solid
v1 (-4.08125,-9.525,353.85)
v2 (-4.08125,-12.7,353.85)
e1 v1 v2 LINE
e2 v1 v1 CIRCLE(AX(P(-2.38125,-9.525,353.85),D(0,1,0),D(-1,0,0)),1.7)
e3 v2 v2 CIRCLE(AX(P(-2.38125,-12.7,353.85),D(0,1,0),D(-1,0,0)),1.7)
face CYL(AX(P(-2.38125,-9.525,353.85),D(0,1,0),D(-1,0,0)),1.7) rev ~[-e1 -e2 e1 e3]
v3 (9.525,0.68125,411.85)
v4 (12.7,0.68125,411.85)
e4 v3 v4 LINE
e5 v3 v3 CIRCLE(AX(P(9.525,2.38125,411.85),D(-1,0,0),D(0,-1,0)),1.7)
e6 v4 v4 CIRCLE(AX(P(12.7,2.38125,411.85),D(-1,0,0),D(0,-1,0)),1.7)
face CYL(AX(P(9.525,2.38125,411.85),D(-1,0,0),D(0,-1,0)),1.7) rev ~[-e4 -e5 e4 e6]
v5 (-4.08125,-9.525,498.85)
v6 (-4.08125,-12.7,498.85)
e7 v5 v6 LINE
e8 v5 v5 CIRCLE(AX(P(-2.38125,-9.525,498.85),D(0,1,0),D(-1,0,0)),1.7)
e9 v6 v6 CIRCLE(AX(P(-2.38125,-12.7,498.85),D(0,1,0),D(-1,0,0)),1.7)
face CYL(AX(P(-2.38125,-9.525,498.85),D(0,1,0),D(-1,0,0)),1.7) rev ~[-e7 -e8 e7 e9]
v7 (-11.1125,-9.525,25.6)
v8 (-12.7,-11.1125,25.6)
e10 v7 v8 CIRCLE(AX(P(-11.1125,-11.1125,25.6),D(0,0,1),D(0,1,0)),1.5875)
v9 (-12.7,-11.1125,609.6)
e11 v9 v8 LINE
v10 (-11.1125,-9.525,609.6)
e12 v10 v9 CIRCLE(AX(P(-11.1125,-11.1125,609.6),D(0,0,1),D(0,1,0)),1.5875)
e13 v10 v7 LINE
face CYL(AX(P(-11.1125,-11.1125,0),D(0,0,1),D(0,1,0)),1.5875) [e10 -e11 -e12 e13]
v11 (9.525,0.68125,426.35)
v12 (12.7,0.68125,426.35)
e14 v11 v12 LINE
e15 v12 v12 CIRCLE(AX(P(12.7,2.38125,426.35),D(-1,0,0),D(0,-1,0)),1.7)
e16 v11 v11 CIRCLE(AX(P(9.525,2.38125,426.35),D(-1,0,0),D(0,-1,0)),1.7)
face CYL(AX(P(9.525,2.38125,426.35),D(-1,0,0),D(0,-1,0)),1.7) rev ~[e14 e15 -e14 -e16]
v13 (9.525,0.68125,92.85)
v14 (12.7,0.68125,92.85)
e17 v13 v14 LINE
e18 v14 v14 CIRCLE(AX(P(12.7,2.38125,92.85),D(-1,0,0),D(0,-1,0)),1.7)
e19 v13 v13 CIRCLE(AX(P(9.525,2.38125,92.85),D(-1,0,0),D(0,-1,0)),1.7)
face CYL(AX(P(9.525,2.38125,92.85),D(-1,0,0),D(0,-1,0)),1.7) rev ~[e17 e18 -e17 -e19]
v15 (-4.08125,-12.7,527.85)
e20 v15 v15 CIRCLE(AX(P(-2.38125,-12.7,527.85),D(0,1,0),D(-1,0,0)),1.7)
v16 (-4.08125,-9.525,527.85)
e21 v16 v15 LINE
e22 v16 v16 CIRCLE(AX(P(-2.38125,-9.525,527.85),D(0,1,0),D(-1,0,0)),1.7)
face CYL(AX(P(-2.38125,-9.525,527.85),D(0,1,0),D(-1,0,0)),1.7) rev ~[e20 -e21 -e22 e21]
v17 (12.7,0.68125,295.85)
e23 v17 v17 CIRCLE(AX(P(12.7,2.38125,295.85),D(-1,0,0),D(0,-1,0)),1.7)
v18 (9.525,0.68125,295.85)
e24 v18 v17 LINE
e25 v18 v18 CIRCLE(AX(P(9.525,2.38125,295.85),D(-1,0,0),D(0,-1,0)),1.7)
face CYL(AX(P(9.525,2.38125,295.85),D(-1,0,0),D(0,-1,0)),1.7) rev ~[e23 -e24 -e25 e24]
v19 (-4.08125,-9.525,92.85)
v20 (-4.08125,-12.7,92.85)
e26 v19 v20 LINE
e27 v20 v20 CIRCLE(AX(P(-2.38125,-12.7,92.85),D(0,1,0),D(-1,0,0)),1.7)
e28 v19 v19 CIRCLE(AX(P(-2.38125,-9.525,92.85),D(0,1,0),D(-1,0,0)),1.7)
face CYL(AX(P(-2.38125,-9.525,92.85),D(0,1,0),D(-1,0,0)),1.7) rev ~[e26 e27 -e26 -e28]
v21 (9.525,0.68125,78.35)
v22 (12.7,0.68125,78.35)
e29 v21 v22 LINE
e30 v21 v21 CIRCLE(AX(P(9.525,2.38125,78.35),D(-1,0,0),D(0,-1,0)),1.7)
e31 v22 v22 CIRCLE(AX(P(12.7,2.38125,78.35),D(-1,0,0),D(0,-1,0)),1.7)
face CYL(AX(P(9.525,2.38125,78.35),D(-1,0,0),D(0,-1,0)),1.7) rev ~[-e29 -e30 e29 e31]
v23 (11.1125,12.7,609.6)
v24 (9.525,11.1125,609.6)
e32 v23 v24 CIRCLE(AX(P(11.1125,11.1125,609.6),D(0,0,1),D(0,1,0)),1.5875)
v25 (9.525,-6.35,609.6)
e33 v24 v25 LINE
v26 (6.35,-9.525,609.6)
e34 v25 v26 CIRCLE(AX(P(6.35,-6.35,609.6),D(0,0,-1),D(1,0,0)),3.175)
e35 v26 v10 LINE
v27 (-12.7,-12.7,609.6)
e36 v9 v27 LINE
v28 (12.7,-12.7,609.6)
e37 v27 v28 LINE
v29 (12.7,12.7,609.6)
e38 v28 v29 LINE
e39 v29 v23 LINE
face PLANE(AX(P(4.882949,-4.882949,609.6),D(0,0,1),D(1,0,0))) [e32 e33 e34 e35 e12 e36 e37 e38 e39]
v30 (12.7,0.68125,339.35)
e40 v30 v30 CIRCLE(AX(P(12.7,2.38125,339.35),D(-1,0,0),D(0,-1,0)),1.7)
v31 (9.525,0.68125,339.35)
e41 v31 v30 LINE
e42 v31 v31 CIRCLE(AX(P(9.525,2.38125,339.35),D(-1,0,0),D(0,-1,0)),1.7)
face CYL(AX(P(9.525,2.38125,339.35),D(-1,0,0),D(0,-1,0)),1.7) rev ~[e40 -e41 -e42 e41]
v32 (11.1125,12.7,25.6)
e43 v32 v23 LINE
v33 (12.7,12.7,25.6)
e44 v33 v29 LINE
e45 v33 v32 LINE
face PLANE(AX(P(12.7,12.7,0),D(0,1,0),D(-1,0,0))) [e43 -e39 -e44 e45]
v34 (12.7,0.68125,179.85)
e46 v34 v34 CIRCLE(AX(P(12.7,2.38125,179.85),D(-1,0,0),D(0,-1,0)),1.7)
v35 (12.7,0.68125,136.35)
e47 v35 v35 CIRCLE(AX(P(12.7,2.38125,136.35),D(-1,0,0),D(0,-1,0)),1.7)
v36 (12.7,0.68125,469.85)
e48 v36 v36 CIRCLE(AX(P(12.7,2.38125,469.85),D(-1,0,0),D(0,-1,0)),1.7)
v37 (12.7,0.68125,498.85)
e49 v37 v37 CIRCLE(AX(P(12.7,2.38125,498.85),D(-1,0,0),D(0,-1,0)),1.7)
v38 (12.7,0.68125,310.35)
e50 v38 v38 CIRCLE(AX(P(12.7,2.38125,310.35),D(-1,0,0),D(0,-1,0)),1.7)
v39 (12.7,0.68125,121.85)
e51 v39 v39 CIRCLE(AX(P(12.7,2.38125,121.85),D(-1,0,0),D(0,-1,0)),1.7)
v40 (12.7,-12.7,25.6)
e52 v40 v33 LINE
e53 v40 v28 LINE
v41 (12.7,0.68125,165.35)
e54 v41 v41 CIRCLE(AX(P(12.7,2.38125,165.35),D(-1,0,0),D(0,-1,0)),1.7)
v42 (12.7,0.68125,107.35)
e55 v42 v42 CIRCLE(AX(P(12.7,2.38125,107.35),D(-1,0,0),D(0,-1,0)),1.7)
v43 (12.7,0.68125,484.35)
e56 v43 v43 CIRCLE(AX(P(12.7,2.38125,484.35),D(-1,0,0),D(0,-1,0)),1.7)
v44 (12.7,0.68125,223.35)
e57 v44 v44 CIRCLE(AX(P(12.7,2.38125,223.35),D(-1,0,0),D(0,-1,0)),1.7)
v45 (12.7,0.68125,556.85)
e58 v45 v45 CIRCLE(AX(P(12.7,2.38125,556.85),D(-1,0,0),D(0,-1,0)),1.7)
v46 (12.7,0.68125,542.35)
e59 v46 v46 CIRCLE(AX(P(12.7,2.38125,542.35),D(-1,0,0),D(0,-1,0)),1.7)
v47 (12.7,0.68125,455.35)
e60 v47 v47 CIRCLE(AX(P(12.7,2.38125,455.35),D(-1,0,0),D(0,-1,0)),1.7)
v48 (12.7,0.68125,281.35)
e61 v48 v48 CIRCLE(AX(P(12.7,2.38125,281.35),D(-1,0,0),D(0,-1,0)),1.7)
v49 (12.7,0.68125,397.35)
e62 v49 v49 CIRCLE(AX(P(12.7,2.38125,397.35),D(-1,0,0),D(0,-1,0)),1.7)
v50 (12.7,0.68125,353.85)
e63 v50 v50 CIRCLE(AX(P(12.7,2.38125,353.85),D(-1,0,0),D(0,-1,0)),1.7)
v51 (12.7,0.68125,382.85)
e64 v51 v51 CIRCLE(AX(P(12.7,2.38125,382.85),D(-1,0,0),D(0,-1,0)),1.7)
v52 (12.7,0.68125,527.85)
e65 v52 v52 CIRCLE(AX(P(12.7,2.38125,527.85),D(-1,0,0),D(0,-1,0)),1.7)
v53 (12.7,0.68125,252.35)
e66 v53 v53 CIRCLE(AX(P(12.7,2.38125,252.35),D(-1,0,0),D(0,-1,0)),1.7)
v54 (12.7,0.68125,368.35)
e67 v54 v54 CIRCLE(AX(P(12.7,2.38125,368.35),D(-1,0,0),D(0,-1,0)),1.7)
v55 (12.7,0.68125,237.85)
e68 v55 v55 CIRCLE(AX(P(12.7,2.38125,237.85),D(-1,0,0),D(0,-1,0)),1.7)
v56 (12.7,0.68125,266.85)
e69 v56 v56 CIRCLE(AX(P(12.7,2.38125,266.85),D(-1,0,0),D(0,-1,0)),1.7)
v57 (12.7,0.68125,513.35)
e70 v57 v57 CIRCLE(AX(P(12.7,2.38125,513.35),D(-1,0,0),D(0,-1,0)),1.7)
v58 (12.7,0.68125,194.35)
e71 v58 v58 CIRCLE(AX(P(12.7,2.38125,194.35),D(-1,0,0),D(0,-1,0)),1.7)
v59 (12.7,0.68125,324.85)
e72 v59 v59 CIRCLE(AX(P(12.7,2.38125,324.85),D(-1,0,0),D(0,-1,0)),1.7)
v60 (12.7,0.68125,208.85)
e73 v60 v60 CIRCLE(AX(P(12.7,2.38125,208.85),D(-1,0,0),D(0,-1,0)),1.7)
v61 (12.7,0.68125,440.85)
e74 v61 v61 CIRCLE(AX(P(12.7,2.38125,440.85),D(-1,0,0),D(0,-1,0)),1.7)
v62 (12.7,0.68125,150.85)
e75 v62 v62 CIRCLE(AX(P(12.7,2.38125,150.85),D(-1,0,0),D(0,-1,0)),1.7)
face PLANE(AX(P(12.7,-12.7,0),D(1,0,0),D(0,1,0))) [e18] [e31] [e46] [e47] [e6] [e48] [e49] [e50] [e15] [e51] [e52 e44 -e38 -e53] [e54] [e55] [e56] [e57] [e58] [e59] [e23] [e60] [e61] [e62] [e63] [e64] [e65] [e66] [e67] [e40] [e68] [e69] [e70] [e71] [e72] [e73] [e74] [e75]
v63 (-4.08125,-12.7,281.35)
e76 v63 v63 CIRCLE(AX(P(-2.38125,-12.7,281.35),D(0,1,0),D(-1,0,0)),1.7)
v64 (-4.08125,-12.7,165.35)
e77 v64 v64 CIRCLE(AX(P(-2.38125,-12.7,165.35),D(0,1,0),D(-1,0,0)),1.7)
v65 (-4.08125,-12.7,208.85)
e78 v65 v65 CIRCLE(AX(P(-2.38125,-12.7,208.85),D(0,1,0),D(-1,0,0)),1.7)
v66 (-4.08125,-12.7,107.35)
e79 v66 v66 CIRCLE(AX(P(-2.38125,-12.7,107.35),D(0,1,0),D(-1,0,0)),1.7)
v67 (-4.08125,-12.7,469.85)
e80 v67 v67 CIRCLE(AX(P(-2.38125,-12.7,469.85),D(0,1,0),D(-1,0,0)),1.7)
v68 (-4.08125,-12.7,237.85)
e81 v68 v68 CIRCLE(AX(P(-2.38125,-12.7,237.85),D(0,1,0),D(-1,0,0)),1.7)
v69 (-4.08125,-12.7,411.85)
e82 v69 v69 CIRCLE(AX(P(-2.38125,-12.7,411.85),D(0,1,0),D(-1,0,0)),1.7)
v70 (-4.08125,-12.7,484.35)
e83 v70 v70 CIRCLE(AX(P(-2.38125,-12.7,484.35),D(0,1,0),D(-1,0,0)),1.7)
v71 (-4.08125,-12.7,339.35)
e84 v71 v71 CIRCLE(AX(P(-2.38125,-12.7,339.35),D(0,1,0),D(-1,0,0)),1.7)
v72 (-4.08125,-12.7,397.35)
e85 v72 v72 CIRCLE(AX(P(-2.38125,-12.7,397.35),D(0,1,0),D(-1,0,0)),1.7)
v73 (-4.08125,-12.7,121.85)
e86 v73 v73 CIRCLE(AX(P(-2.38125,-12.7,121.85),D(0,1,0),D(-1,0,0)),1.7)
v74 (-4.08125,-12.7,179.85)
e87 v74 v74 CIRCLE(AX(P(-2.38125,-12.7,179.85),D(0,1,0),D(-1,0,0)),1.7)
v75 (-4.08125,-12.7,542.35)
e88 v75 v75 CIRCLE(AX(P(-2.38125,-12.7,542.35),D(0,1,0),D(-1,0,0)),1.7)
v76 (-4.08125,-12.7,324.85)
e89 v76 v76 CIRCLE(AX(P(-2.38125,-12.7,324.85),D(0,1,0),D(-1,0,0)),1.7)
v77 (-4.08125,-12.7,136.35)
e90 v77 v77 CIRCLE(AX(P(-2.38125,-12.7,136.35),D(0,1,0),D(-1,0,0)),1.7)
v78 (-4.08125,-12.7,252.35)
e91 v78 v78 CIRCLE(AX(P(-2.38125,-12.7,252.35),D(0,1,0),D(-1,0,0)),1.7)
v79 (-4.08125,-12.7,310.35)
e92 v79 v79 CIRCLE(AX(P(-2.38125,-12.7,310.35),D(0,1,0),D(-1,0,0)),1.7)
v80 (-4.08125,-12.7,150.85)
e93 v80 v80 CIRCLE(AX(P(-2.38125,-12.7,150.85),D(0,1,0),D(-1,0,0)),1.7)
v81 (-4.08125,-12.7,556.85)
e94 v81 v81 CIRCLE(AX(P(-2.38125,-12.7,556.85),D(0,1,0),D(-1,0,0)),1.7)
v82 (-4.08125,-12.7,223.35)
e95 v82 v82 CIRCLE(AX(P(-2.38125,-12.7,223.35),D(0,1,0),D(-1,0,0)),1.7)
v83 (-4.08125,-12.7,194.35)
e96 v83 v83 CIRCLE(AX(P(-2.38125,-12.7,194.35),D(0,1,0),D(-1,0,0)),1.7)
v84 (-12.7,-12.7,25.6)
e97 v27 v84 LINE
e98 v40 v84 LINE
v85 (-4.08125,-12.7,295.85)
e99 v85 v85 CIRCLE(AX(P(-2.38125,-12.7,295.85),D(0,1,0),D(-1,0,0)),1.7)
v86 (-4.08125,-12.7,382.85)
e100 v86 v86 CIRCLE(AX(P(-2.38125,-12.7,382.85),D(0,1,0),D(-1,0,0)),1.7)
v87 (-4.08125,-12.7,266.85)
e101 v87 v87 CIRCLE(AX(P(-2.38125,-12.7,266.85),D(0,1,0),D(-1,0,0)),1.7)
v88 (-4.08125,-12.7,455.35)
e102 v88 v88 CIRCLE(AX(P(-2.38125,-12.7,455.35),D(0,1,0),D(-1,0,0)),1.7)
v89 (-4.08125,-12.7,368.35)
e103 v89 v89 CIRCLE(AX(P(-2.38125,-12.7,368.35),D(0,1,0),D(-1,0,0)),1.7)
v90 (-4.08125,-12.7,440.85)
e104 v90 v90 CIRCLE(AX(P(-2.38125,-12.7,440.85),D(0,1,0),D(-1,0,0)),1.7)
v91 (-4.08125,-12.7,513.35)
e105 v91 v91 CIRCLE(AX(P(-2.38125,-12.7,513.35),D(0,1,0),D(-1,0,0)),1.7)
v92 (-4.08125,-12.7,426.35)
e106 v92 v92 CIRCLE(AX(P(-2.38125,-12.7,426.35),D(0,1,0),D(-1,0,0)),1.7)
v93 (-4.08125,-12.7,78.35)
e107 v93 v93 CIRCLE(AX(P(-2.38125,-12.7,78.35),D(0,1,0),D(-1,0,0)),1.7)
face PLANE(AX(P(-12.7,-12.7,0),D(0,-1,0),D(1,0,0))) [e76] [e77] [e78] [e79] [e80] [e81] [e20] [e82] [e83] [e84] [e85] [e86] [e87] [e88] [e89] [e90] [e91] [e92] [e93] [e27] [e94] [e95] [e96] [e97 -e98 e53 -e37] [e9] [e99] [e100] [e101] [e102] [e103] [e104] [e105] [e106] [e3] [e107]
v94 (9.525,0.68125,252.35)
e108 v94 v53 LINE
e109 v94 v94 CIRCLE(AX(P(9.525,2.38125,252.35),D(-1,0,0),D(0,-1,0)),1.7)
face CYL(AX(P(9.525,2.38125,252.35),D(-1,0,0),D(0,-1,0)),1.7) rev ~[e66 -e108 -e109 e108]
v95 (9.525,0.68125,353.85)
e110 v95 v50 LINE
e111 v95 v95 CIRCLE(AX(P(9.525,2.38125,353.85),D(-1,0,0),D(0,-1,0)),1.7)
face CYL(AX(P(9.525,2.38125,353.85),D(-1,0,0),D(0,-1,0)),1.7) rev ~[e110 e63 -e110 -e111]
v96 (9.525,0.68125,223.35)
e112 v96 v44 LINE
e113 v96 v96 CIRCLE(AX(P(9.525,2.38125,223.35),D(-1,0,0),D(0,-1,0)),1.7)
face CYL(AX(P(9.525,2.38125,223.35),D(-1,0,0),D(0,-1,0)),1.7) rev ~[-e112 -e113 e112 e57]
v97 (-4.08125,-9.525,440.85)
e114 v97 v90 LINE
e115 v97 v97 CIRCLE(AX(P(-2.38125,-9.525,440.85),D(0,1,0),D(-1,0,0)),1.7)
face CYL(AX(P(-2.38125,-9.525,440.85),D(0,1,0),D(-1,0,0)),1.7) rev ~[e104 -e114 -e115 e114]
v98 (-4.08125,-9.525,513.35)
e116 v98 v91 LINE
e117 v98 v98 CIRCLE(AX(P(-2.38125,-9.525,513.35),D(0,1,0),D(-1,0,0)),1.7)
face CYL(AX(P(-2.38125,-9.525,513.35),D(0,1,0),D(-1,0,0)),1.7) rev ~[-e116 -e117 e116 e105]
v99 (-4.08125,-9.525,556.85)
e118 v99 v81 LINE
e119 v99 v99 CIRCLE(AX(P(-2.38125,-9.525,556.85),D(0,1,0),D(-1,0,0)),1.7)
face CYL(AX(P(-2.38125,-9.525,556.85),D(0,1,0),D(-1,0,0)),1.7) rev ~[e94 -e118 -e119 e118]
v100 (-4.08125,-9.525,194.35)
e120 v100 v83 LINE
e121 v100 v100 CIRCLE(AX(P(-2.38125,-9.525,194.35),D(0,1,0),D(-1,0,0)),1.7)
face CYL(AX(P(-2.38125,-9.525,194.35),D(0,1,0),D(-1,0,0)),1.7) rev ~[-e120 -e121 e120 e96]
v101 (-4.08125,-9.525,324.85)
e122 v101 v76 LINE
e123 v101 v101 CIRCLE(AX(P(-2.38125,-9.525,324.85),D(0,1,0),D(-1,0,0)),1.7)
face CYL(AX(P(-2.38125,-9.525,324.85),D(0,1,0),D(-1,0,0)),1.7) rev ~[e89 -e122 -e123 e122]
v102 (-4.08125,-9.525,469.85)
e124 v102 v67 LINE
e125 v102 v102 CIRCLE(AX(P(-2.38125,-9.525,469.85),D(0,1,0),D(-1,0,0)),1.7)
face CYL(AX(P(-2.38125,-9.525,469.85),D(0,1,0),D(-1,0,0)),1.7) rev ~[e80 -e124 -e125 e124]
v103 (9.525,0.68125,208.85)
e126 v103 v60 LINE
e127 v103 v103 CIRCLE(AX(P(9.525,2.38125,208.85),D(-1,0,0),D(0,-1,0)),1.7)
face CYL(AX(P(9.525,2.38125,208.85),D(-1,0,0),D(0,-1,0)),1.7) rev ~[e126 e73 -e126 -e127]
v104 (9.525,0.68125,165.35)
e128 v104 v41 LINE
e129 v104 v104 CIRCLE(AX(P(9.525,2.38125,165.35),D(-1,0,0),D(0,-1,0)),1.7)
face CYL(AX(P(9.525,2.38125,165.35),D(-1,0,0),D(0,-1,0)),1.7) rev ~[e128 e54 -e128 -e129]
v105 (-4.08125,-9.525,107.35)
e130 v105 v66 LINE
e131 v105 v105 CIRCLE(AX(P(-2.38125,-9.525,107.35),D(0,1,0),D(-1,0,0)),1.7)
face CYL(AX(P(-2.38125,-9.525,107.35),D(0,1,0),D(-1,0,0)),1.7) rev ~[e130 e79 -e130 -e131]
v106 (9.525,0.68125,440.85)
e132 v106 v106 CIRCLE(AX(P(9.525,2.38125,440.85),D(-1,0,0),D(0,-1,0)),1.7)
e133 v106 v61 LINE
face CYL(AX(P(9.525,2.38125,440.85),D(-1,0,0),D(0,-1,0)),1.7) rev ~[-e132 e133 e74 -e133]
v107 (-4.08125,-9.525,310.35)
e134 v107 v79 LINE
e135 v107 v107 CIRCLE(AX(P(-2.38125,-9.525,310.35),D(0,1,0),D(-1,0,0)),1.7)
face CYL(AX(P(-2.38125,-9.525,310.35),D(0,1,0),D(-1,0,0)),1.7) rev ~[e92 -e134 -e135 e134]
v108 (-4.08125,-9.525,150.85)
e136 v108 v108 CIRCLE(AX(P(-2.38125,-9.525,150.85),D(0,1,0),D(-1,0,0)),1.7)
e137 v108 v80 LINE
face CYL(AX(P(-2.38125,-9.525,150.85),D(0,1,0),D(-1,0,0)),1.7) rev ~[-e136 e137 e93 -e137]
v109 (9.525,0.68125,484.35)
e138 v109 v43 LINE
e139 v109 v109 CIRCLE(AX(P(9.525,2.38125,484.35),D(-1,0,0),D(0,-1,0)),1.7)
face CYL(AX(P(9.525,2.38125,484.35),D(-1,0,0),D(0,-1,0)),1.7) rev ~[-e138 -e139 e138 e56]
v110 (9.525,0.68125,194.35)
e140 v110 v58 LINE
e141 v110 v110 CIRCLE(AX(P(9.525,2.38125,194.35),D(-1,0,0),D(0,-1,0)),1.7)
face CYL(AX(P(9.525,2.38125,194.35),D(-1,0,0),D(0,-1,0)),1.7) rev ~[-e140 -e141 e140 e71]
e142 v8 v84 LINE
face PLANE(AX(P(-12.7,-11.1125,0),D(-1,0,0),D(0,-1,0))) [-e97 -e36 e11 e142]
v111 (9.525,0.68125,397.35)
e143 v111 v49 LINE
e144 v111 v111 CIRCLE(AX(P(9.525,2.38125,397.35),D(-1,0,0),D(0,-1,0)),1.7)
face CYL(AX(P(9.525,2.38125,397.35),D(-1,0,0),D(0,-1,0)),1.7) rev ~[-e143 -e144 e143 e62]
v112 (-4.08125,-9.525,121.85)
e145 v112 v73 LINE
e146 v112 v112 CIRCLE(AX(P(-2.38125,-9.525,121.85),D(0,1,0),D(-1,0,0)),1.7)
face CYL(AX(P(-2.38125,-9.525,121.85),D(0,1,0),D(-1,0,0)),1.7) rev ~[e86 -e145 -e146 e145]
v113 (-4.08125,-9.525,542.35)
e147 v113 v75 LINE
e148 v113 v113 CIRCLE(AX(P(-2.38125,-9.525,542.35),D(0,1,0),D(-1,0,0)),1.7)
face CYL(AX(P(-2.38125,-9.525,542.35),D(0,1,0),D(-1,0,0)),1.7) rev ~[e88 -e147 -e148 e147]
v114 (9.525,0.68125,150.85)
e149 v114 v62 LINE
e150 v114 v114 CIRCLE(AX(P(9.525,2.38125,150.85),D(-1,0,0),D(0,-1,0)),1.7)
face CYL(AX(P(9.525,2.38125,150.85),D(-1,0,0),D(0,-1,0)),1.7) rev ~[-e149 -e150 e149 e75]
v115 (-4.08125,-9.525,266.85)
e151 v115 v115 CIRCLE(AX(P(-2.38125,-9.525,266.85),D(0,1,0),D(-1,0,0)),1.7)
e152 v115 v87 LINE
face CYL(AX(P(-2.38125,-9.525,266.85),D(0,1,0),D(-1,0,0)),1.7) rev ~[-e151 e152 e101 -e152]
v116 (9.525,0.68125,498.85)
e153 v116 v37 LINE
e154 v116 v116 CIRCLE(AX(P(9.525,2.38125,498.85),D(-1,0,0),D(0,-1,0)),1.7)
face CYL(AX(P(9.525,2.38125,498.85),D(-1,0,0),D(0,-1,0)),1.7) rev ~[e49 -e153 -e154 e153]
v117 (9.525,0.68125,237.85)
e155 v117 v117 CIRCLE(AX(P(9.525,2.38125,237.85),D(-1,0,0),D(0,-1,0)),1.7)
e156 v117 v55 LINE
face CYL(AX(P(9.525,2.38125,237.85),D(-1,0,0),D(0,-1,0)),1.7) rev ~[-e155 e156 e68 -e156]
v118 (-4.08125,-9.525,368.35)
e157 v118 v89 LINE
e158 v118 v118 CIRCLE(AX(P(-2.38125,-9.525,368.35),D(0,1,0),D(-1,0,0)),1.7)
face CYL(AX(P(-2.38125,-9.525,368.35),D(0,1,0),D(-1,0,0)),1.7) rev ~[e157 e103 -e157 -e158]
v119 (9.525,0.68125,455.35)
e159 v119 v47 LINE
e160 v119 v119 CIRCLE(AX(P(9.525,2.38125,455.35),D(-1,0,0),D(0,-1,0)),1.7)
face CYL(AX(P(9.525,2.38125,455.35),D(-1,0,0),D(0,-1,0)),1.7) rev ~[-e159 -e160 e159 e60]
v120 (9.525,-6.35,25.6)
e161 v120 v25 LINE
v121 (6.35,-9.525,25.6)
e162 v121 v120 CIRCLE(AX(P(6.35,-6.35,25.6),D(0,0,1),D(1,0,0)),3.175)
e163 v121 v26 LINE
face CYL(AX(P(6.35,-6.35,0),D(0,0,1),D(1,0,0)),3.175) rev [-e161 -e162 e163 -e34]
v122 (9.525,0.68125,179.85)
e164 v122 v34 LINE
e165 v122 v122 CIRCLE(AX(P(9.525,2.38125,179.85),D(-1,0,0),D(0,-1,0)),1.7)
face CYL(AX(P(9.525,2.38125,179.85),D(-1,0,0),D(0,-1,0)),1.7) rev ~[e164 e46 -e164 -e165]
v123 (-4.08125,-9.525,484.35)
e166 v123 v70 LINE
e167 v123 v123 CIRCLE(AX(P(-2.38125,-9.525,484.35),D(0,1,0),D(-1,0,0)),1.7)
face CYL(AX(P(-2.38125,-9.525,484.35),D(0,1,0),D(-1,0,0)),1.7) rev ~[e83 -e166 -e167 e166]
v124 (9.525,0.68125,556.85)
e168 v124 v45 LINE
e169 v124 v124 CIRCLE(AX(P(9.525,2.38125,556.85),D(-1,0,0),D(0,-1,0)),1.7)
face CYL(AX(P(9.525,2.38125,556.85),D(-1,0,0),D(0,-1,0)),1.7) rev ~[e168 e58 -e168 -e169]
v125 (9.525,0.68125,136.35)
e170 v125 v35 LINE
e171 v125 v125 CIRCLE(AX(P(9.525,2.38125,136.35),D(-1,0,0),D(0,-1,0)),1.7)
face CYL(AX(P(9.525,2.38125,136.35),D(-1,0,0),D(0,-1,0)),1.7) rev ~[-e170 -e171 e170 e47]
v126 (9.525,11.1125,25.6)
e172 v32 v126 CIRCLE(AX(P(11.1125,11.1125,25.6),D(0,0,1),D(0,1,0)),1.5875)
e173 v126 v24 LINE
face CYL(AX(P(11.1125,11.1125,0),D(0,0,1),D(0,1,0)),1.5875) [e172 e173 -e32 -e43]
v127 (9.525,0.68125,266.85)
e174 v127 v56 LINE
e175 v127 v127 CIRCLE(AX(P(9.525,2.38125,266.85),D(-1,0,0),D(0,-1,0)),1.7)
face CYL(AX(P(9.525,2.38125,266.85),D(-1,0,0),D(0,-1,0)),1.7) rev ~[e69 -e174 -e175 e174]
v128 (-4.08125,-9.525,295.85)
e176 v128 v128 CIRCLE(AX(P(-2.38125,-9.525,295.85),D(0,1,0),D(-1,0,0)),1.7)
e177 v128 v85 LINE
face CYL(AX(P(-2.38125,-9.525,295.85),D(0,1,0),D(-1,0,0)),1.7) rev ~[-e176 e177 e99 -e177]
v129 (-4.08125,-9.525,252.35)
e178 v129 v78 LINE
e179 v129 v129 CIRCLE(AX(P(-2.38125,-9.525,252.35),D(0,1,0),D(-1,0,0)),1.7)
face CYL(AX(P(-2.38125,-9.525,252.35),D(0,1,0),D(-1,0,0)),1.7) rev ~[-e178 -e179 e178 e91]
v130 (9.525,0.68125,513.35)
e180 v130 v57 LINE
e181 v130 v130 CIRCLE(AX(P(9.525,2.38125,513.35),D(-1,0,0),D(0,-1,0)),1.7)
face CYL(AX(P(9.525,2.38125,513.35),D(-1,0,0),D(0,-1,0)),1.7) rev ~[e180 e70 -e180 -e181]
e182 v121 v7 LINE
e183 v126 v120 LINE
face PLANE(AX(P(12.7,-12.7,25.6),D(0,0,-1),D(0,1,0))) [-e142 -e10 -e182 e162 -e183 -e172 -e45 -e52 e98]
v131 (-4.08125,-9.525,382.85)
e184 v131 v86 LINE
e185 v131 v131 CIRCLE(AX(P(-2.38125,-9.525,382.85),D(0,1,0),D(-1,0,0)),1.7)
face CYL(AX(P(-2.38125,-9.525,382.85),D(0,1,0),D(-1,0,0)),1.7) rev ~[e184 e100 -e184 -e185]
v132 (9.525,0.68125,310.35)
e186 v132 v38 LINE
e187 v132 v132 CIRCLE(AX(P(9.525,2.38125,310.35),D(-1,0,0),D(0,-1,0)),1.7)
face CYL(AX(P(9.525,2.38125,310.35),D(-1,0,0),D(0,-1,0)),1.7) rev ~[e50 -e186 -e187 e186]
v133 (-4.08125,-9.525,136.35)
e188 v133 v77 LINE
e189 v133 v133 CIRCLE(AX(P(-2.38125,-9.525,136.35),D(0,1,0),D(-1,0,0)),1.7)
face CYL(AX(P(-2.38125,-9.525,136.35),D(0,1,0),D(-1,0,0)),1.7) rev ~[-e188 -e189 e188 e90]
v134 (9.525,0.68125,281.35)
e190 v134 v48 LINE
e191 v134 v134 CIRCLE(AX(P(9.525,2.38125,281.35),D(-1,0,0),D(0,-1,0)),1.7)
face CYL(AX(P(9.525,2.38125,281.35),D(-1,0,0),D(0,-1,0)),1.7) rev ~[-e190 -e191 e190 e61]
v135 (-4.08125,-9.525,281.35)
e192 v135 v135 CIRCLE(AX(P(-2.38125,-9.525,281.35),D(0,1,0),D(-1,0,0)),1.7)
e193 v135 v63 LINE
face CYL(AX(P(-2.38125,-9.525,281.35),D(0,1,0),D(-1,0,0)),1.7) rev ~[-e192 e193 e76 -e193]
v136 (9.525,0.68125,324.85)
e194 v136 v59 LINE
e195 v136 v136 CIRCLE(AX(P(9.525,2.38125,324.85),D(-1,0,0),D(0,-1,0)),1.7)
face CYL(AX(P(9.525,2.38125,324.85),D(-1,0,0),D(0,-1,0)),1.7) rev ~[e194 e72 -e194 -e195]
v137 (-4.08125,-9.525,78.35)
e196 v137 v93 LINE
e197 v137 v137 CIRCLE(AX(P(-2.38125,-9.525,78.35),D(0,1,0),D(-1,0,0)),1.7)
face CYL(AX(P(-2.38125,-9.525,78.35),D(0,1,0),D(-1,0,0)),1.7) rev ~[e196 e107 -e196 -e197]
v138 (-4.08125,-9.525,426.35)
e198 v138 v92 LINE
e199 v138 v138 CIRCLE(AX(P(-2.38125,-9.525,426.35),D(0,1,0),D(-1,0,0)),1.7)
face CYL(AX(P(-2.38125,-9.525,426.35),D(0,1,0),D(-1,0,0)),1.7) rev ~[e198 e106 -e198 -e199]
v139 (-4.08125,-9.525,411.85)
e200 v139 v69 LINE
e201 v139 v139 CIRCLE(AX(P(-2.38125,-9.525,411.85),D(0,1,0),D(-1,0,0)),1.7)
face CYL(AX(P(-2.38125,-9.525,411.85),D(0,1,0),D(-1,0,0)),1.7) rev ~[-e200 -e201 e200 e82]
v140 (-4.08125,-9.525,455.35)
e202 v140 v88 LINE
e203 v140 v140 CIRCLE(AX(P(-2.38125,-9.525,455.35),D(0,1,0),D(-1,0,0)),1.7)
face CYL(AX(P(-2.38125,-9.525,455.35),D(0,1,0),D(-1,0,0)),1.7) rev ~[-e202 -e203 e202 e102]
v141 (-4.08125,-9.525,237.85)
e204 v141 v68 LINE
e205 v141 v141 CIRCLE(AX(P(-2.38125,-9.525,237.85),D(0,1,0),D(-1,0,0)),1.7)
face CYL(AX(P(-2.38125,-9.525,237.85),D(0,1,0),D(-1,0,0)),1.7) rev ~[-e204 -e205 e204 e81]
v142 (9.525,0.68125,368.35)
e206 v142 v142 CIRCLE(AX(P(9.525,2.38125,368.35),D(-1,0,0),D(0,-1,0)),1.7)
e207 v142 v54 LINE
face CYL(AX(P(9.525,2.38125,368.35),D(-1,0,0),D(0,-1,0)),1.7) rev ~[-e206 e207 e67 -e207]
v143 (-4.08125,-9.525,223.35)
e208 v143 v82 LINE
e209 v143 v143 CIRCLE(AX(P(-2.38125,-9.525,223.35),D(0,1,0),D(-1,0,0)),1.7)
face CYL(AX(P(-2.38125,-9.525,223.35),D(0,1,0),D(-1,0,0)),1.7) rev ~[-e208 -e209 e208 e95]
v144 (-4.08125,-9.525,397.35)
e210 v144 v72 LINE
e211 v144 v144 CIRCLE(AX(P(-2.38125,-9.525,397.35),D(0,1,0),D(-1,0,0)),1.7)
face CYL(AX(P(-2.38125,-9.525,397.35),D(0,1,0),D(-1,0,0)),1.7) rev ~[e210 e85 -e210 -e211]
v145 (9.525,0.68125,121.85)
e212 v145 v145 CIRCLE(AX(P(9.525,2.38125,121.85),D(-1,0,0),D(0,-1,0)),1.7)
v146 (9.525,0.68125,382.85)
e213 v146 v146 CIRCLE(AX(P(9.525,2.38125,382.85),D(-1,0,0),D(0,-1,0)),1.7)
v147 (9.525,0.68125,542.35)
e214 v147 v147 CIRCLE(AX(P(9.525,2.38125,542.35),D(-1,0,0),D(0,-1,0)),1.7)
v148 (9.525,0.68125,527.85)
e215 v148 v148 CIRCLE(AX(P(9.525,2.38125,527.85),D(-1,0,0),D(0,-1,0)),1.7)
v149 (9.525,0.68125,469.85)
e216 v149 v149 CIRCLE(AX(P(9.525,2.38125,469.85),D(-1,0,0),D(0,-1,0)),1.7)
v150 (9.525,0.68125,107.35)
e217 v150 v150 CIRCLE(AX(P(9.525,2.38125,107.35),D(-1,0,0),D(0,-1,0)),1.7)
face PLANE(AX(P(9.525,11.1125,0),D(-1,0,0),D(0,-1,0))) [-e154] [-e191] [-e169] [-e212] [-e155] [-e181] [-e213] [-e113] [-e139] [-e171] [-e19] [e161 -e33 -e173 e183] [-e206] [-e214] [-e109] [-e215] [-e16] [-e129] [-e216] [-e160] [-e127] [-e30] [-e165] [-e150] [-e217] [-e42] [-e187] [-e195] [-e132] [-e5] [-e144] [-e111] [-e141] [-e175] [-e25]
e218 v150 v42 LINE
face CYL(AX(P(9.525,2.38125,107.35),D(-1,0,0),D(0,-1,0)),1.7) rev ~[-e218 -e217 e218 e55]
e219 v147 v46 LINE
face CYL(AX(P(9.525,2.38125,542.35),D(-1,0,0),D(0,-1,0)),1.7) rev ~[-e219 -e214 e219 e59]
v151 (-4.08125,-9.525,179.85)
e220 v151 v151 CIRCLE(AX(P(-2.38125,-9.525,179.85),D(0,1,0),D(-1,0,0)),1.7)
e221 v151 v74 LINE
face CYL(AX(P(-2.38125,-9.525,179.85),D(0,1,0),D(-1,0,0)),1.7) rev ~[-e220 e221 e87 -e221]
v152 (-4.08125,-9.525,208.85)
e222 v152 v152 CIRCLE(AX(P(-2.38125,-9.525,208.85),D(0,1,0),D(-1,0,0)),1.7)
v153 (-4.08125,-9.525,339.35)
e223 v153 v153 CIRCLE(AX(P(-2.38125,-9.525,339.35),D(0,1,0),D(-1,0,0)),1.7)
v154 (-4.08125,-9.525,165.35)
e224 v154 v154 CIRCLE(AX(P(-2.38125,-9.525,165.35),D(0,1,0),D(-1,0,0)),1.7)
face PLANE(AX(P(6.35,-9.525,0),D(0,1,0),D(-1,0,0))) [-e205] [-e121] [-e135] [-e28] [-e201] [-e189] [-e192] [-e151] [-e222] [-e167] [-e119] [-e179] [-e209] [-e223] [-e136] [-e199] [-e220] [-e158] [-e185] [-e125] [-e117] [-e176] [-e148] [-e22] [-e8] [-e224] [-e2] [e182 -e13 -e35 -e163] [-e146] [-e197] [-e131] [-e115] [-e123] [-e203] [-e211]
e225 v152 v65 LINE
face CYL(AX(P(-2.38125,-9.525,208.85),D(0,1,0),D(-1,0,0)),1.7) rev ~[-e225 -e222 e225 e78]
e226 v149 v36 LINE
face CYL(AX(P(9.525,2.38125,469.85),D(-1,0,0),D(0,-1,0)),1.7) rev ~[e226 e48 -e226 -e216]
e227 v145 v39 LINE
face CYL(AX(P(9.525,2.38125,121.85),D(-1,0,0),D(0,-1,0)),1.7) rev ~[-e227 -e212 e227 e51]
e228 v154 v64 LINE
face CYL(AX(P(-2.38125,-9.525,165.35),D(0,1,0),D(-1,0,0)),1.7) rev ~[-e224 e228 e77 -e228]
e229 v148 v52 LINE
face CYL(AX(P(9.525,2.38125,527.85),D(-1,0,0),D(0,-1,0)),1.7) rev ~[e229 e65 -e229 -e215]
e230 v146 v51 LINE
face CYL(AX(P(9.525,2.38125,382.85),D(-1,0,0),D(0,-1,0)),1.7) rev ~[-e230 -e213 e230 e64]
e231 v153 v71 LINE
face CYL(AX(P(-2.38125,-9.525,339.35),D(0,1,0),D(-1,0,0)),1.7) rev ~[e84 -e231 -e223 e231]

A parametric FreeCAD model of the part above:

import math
import FreeCAD as App
import Part
import Sketcher

V = App.Vector
Q = App.Units.Quantity

doc = App.newDocument("Part")
body = doc.addObject("PartDesign::Body", "Body")

sketch1 = body.newObject("Sketcher::SketchObject", "Sketch")
sketch1.AttachmentSupport = (doc.getObject("XY_Plane"), [""])
sketch1.MapMode = "FlatFace"
sketch1.addGeometry([
    Part.LineSegment(V(-12.7, -12.7, 0), V(12.7, -12.7, 0)),
    Part.LineSegment(V(12.7, -12.7, 0), V(12.7, 12.7, 0)),
    Part.LineSegment(V(12.7, 12.7, 0), V(11.1, 12.7, 0)),
    Part.ArcOfCircle(Part.Circle(V(11.1, 11.1, 0), V(0, 0, 1), 1.6), math.radians(90), math.radians(180)),
    Part.LineSegment(V(9.5, 11.1, 0), V(9.5, -6.3, 0)),
    Part.ArcOfCircle(Part.Circle(V(6.3, -6.3, 0), V(0, 0, 1), 3.2), math.radians(-90), math.radians(0)),
    Part.LineSegment(V(6.3, -9.5, 0), V(-11.1, -9.5, 0)),
    Part.ArcOfCircle(Part.Circle(V(-11.1, -11.1, 0), V(0, 0, 1), 1.6), math.radians(90), math.radians(180)),
    Part.LineSegment(V(-12.7, -11.1, 0), V(-12.7, -12.7, 0)),
], False)
sketch1.addConstraint([
    Sketcher.Constraint("Coincident", 0, 2, 1, 1),
    Sketcher.Constraint("Coincident", 1, 2, 2, 1),
    Sketcher.Constraint("Tangent", 2, 2, 3, 1),
    Sketcher.Constraint("Tangent", 3, 2, 4, 1),
    Sketcher.Constraint("Tangent", 4, 2, 5, 2),
    Sketcher.Constraint("Tangent", 5, 1, 6, 1),
    Sketcher.Constraint("Tangent", 6, 2, 7, 1),
    Sketcher.Constraint("Tangent", 7, 2, 8, 1),
    Sketcher.Constraint("Coincident", 8, 2, 0, 1),
    Sketcher.Constraint("Horizontal", 0),
    Sketcher.Constraint("Vertical", 1),
    Sketcher.Constraint("Horizontal", 2),
    Sketcher.Constraint("Vertical", 4),
    Sketcher.Constraint("Horizontal", 6),
    Sketcher.Constraint("Vertical", 8),
    Sketcher.Constraint("Equal", 3, 7),
    Sketcher.Constraint("Symmetric", 3, 3, 7, 3, -1, 1),
    Sketcher.Constraint("Symmetric", 1, 2, 8, 2, -1, 1),
    Sketcher.Constraint("Equal", 0, 1),
    Sketcher.Constraint("DistanceX", 0, 1, 0, 2, Q("1 in")),
    Sketcher.Constraint("Radius", 3, Q("0.0625 in")),
    Sketcher.Constraint("Radius", 5, Q("0.125 in")),
])
pad1 = body.newObject("PartDesign::Pad", "Pad")
pad1.Profile = sketch1
pad1.Length = Q("48 in")
pad1.Midplane = True

sketch2 = body.newObject("Sketcher::SketchObject", "Sketch001")
sketch2.AttachmentSupport = (doc.getObject("YZ_Plane"), [""])
sketch2.MapMode = "FlatFace"
sketch2.AttachmentOffset = App.Placement(V(0, 0, 0.5 * 25.4), App.Rotation())
sketch2.addGeometry([
    Part.LineSegment(V(13, 26, 0), V(-13, 26, 0)),
    Part.LineSegment(V(-13, 26, 0), V(-13, -610, 0)),
    Part.LineSegment(V(-13, -610, 0), V(13, -610, 0)),
    Part.LineSegment(V(13, -610, 0), V(13, 26, 0)),
], False)
sketch2.addConstraint([
    Sketcher.Constraint("Coincident", 0, 2, 1, 1),
    Sketcher.Constraint("Coincident", 1, 2, 2, 1),
    Sketcher.Constraint("Coincident", 2, 2, 3, 1),
    Sketcher.Constraint("Coincident", 3, 2, 0, 1),
    Sketcher.Constraint("Horizontal", 0),
    Sketcher.Constraint("Vertical", 1),
    Sketcher.Constraint("Horizontal", 2),
    Sketcher.Constraint("Vertical", 3),
    Sketcher.Constraint("DistanceX", 0, 2, 0, 1, Q("1 in")),
    Sketcher.Constraint("DistanceY", 1, 2, -1, 1, Q("24 in")),
    Sketcher.Constraint("DistanceX", 0, 2, -1, 1, Q("0.5 in")),
    Sketcher.Constraint("DistanceY", 1, 2, 1, 1, Q("635.2 mm")),
])
pocket1 = body.newObject("PartDesign::Pocket", "Pocket")
pocket1.Profile = sketch2
pocket1.Length = Q("1.2 in")

sketch3 = body.newObject("Sketcher::SketchObject", "Sketch002")
sketch3.AttachmentSupport = (doc.getObject("YZ_Plane"), [""])
sketch3.MapMode = "FlatFace"
sketch3.AttachmentOffset = App.Placement(V(0, 0, 0.375 * 25.4), App.Rotation())
sketch3.addGeometry([
    Part.Circle(V(2.4, 78.3, 0), V(0, 0, 1), 1.7),
    Part.Circle(V(2.4, 92.8, 0), V(0, 0, 1), 1.7),
    Part.Circle(V(2.4, 107.3, 0), V(0, 0, 1), 1.7),
    Part.Circle(V(2.4, 121.8, 0), V(0, 0, 1), 1.7),
    Part.Circle(V(2.4, 136.3, 0), V(0, 0, 1), 1.7),
    Part.Circle(V(2.4, 150.8, 0), V(0, 0, 1), 1.7),
    Part.Circle(V(2.4, 165.3, 0), V(0, 0, 1), 1.7),
    Part.Circle(V(2.4, 179.8, 0), V(0, 0, 1), 1.7),
    Part.Circle(V(2.4, 194.3, 0), V(0, 0, 1), 1.7),
    Part.Circle(V(2.4, 208.8, 0), V(0, 0, 1), 1.7),
    Part.Circle(V(2.4, 223.3, 0), V(0, 0, 1), 1.7),
    Part.Circle(V(2.4, 237.8, 0), V(0, 0, 1), 1.7),
    Part.Circle(V(2.4, 252.3, 0), V(0, 0, 1), 1.7),
    Part.Circle(V(2.4, 266.9, 0), V(0, 0, 1), 1.7),
    Part.Circle(V(2.4, 281.4, 0), V(0, 0, 1), 1.7),
    Part.Circle(V(2.4, 295.9, 0), V(0, 0, 1), 1.7),
    Part.Circle(V(2.4, 310.4, 0), V(0, 0, 1), 1.7),
    Part.Circle(V(2.4, 324.9, 0), V(0, 0, 1), 1.7),
    Part.Circle(V(2.4, 339.4, 0), V(0, 0, 1), 1.7),
    Part.Circle(V(2.4, 353.9, 0), V(0, 0, 1), 1.7),
    Part.Circle(V(2.4, 368.4, 0), V(0, 0, 1), 1.7),
    Part.Circle(V(2.4, 382.9, 0), V(0, 0, 1), 1.7),
    Part.Circle(V(2.4, 397.4, 0), V(0, 0, 1), 1.7),
    Part.Circle(V(2.4, 411.9, 0), V(0, 0, 1), 1.7),
    Part.Circle(V(2.4, 426.4, 0), V(0, 0, 1), 1.7),
    Part.Circle(V(2.4, 440.9, 0), V(0, 0, 1), 1.7),
    Part.Circle(V(2.4, 455.4, 0), V(0, 0, 1), 1.7),
    Part.Circle(V(2.4, 469.9, 0), V(0, 0, 1), 1.7),
    Part.Circle(V(2.4, 484.4, 0), V(0, 0, 1), 1.7),
    Part.Circle(V(2.4, 498.9, 0), V(0, 0, 1), 1.7),
    Part.Circle(V(2.4, 513.4, 0), V(0, 0, 1), 1.7),
    Part.Circle(V(2.4, 527.9, 0), V(0, 0, 1), 1.7),
    Part.Circle(V(2.4, 542.4, 0), V(0, 0, 1), 1.7),
    Part.Circle(V(2.4, 556.9, 0), V(0, 0, 1), 1.7),
], False)
sketch3.addConstraint([
    Sketcher.Constraint("Equal", 0, 1),
    Sketcher.Constraint("Equal", 1, 2),
    Sketcher.Constraint("Equal", 2, 3),
    Sketcher.Constraint("Equal", 3, 4),
    Sketcher.Constraint("Equal", 4, 5),
    Sketcher.Constraint("Equal", 5, 6),
    Sketcher.Constraint("Equal", 6, 7),
    Sketcher.Constraint("Equal", 7, 8),
    Sketcher.Constraint("Equal", 8, 9),
    Sketcher.Constraint("Equal", 9, 10),
    Sketcher.Constraint("Equal", 10, 11),
    Sketcher.Constraint("Equal", 11, 12),
    Sketcher.Constraint("Equal", 12, 13),
    Sketcher.Constraint("Equal", 13, 14),
    Sketcher.Constraint("Equal", 14, 15),
    Sketcher.Constraint("Equal", 15, 16),
    Sketcher.Constraint("Equal", 16, 17),
    Sketcher.Constraint("Equal", 17, 18),
    Sketcher.Constraint("Equal", 18, 19),
    Sketcher.Constraint("Equal", 19, 20),
    Sketcher.Constraint("Equal", 20, 21),
    Sketcher.Constraint("Equal", 21, 22),
    Sketcher.Constraint("Equal", 22, 23),
    Sketcher.Constraint("Equal", 23, 24),
    Sketcher.Constraint("Equal", 24, 25),
    Sketcher.Constraint("Equal", 25, 26),
    Sketcher.Constraint("Equal", 26, 27),
    Sketcher.Constraint("Equal", 27, 28),
    Sketcher.Constraint("Equal", 28, 29),
    Sketcher.Constraint("Equal", 29, 30),
    Sketcher.Constraint("Equal", 30, 31),
    Sketcher.Constraint("Equal", 31, 32),
    Sketcher.Constraint("Equal", 32, 33),
    Sketcher.Constraint("Vertical", 0, 3, 1, 3),
    Sketcher.Constraint("Vertical", 1, 3, 2, 3),
    Sketcher.Constraint("Vertical", 2, 3, 3, 3),
    Sketcher.Constraint("Vertical", 3, 3, 4, 3),
    Sketcher.Constraint("Vertical", 4, 3, 5, 3),
    Sketcher.Constraint("Vertical", 5, 3, 6, 3),
    Sketcher.Constraint("Vertical", 6, 3, 7, 3),
    Sketcher.Constraint("Vertical", 7, 3, 8, 3),
    Sketcher.Constraint("Vertical", 8, 3, 9, 3),
    Sketcher.Constraint("Vertical", 9, 3, 10, 3),
    Sketcher.Constraint("Vertical", 10, 3, 11, 3),
    Sketcher.Constraint("Vertical", 11, 3, 12, 3),
    Sketcher.Constraint("Vertical", 12, 3, 13, 3),
    Sketcher.Constraint("Vertical", 13, 3, 14, 3),
    Sketcher.Constraint("Vertical", 14, 3, 15, 3),
    Sketcher.Constraint("Vertical", 15, 3, 16, 3),
    Sketcher.Constraint("Vertical", 16, 3, 17, 3),
    Sketcher.Constraint("Vertical", 17, 3, 18, 3),
    Sketcher.Constraint("Vertical", 18, 3, 19, 3),
    Sketcher.Constraint("Vertical", 19, 3, 20, 3),
    Sketcher.Constraint("Vertical", 20, 3, 21, 3),
    Sketcher.Constraint("Vertical", 21, 3, 22, 3),
    Sketcher.Constraint("Vertical", 22, 3, 23, 3),
    Sketcher.Constraint("Vertical", 23, 3, 24, 3),
    Sketcher.Constraint("Vertical", 24, 3, 25, 3),
    Sketcher.Constraint("Vertical", 25, 3, 26, 3),
    Sketcher.Constraint("Vertical", 26, 3, 27, 3),
    Sketcher.Constraint("Vertical", 27, 3, 28, 3),
    Sketcher.Constraint("Vertical", 28, 3, 29, 3),
    Sketcher.Constraint("Vertical", 29, 3, 30, 3),
    Sketcher.Constraint("Vertical", 30, 3, 31, 3),
    Sketcher.Constraint("Vertical", 31, 3, 32, 3),
    Sketcher.Constraint("Vertical", 32, 3, 33, 3),
    Sketcher.Constraint("Diameter", 0, Q("3.4 mm")),
    Sketcher.Constraint("DistanceX", -1, 1, 0, 3, Q("0.09375 in")),
    Sketcher.Constraint("DistanceY", -1, 1, 0, 3, Q("78.35 mm")),
    Sketcher.Constraint("DistanceY", -1, 1, 1, 3, Q("92.85 mm")),
    Sketcher.Constraint("DistanceY", -1, 1, 2, 3, Q("107.35 mm")),
    Sketcher.Constraint("DistanceY", -1, 1, 3, 3, Q("121.85 mm")),
    Sketcher.Constraint("DistanceY", -1, 1, 4, 3, Q("136.35 mm")),
    Sketcher.Constraint("DistanceY", -1, 1, 5, 3, Q("150.85 mm")),
    Sketcher.Constraint("DistanceY", -1, 1, 6, 3, Q("165.35 mm")),
    Sketcher.Constraint("DistanceY", -1, 1, 7, 3, Q("179.85 mm")),
    Sketcher.Constraint("DistanceY", -1, 1, 8, 3, Q("194.35 mm")),
    Sketcher.Constraint("DistanceY", -1, 1, 9, 3, Q("208.85 mm")),
    Sketcher.Constraint("DistanceY", -1, 1, 10, 3, Q("223.35 mm")),
    Sketcher.Constraint("DistanceY", -1, 1, 11, 3, Q("237.85 mm")),
    Sketcher.Constraint("DistanceY", -1, 1, 12, 3, Q("252.35 mm")),
    Sketcher.Constraint("DistanceY", -1, 1, 13, 3, Q("266.85 mm")),
    Sketcher.Constraint("DistanceY", -1, 1, 14, 3, Q("281.35 mm")),
    Sketcher.Constraint("DistanceY", -1, 1, 15, 3, Q("295.85 mm")),
    Sketcher.Constraint("DistanceY", -1, 1, 16, 3, Q("310.35 mm")),
    Sketcher.Constraint("DistanceY", -1, 1, 17, 3, Q("324.85 mm")),
    Sketcher.Constraint("DistanceY", -1, 1, 18, 3, Q("339.35 mm")),
    Sketcher.Constraint("DistanceY", -1, 1, 19, 3, Q("353.85 mm")),
    Sketcher.Constraint("DistanceY", -1, 1, 20, 3, Q("368.35 mm")),
    Sketcher.Constraint("DistanceY", -1, 1, 21, 3, Q("382.85 mm")),
    Sketcher.Constraint("DistanceY", -1, 1, 22, 3, Q("397.35 mm")),
    Sketcher.Constraint("DistanceY", -1, 1, 23, 3, Q("411.85 mm")),
    Sketcher.Constraint("DistanceY", -1, 1, 24, 3, Q("426.35 mm")),
    Sketcher.Constraint("DistanceY", -1, 1, 25, 3, Q("440.85 mm")),
    Sketcher.Constraint("DistanceY", -1, 1, 26, 3, Q("455.35 mm")),
    Sketcher.Constraint("DistanceY", -1, 1, 27, 3, Q("469.85 mm")),
    Sketcher.Constraint("DistanceY", -1, 1, 28, 3, Q("484.35 mm")),
    Sketcher.Constraint("DistanceY", -1, 1, 29, 3, Q("498.85 mm")),
    Sketcher.Constraint("DistanceY", -1, 1, 30, 3, Q("513.35 mm")),
    Sketcher.Constraint("DistanceY", -1, 1, 31, 3, Q("527.85 mm")),
    Sketcher.Constraint("DistanceY", -1, 1, 32, 3, Q("542.35 mm")),
    Sketcher.Constraint("DistanceY", -1, 1, 33, 3, Q("556.85 mm")),
])
pocket2 = body.newObject("PartDesign::Pocket", "Pocket001")
pocket2.Profile = sketch3
pocket2.Type = "ThroughAll"
pocket2.Reversed = True

sketch4 = body.newObject("Sketcher::SketchObject", "Sketch003")
sketch4.AttachmentSupport = (doc.getObject("XZ_Plane"), [""])
sketch4.MapMode = "FlatFace"
sketch4.AttachmentOffset = App.Placement(V(0, 0, 0.375 * 25.4), App.Rotation())
sketch4.addGeometry([
    Part.Circle(V(-2.4, 78.3, 0), V(0, 0, 1), 1.7),
    Part.Circle(V(-2.4, 92.8, 0), V(0, 0, 1), 1.7),
    Part.Circle(V(-2.4, 107.3, 0), V(0, 0, 1), 1.7),
    Part.Circle(V(-2.4, 121.8, 0), V(0, 0, 1), 1.7),
    Part.Circle(V(-2.4, 136.3, 0), V(0, 0, 1), 1.7),
    Part.Circle(V(-2.4, 150.8, 0), V(0, 0, 1), 1.7),
    Part.Circle(V(-2.4, 165.3, 0), V(0, 0, 1), 1.7),
    Part.Circle(V(-2.4, 179.8, 0), V(0, 0, 1), 1.7),
    Part.Circle(V(-2.4, 194.3, 0), V(0, 0, 1), 1.7),
    Part.Circle(V(-2.4, 208.8, 0), V(0, 0, 1), 1.7),
    Part.Circle(V(-2.4, 223.3, 0), V(0, 0, 1), 1.7),
    Part.Circle(V(-2.4, 237.8, 0), V(0, 0, 1), 1.7),
    Part.Circle(V(-2.4, 252.3, 0), V(0, 0, 1), 1.7),
    Part.Circle(V(-2.4, 266.9, 0), V(0, 0, 1), 1.7),
    Part.Circle(V(-2.4, 281.4, 0), V(0, 0, 1), 1.7),
    Part.Circle(V(-2.4, 295.9, 0), V(0, 0, 1), 1.7),
    Part.Circle(V(-2.4, 310.4, 0), V(0, 0, 1), 1.7),
    Part.Circle(V(-2.4, 324.9, 0), V(0, 0, 1), 1.7),
    Part.Circle(V(-2.4, 339.4, 0), V(0, 0, 1), 1.7),
    Part.Circle(V(-2.4, 353.9, 0), V(0, 0, 1), 1.7),
    Part.Circle(V(-2.4, 368.4, 0), V(0, 0, 1), 1.7),
    Part.Circle(V(-2.4, 382.9, 0), V(0, 0, 1), 1.7),
    Part.Circle(V(-2.4, 397.4, 0), V(0, 0, 1), 1.7),
    Part.Circle(V(-2.4, 411.9, 0), V(0, 0, 1), 1.7),
    Part.Circle(V(-2.4, 426.4, 0), V(0, 0, 1), 1.7),
    Part.Circle(V(-2.4, 440.9, 0), V(0, 0, 1), 1.7),
    Part.Circle(V(-2.4, 455.4, 0), V(0, 0, 1), 1.7),
    Part.Circle(V(-2.4, 469.9, 0), V(0, 0, 1), 1.7),
    Part.Circle(V(-2.4, 484.4, 0), V(0, 0, 1), 1.7),
    Part.Circle(V(-2.4, 498.9, 0), V(0, 0, 1), 1.7),
    Part.Circle(V(-2.4, 513.4, 0), V(0, 0, 1), 1.7),
    Part.Circle(V(-2.4, 527.9, 0), V(0, 0, 1), 1.7),
    Part.Circle(V(-2.4, 542.4, 0), V(0, 0, 1), 1.7),
    Part.Circle(V(-2.4, 556.9, 0), V(0, 0, 1), 1.7),
], False)
sketch4.addConstraint([
    Sketcher.Constraint("Equal", 0, 1),
    Sketcher.Constraint("Equal", 1, 2),
    Sketcher.Constraint("Equal", 2, 3),
    Sketcher.Constraint("Equal", 3, 4),
    Sketcher.Constraint("Equal", 4, 5),
    Sketcher.Constraint("Equal", 5, 6),
    Sketcher.Constraint("Equal", 6, 7),
    Sketcher.Constraint("Equal", 7, 8),
    Sketcher.Constraint("Equal", 8, 9),
    Sketcher.Constraint("Equal", 9, 10),
    Sketcher.Constraint("Equal", 10, 11),
    Sketcher.Constraint("Equal", 11, 12),
    Sketcher.Constraint("Equal", 12, 13),
    Sketcher.Constraint("Equal", 13, 14),
    Sketcher.Constraint("Equal", 14, 15),
    Sketcher.Constraint("Equal", 15, 16),
    Sketcher.Constraint("Equal", 16, 17),
    Sketcher.Constraint("Equal", 17, 18),
    Sketcher.Constraint("Equal", 18, 19),
    Sketcher.Constraint("Equal", 19, 20),
    Sketcher.Constraint("Equal", 20, 21),
    Sketcher.Constraint("Equal", 21, 22),
    Sketcher.Constraint("Equal", 22, 23),
    Sketcher.Constraint("Equal", 23, 24),
    Sketcher.Constraint("Equal", 24, 25),
    Sketcher.Constraint("Equal", 25, 26),
    Sketcher.Constraint("Equal", 26, 27),
    Sketcher.Constraint("Equal", 27, 28),
    Sketcher.Constraint("Equal", 28, 29),
    Sketcher.Constraint("Equal", 29, 30),
    Sketcher.Constraint("Equal", 30, 31),
    Sketcher.Constraint("Equal", 31, 32),
    Sketcher.Constraint("Equal", 32, 33),
    Sketcher.Constraint("Vertical", 0, 3, 1, 3),
    Sketcher.Constraint("Vertical", 1, 3, 2, 3),
    Sketcher.Constraint("Vertical", 2, 3, 3, 3),
    Sketcher.Constraint("Vertical", 3, 3, 4, 3),
    Sketcher.Constraint("Vertical", 4, 3, 5, 3),
    Sketcher.Constraint("Vertical", 5, 3, 6, 3),
    Sketcher.Constraint("Vertical", 6, 3, 7, 3),
    Sketcher.Constraint("Vertical", 7, 3, 8, 3),
    Sketcher.Constraint("Vertical", 8, 3, 9, 3),
    Sketcher.Constraint("Vertical", 9, 3, 10, 3),
    Sketcher.Constraint("Vertical", 10, 3, 11, 3),
    Sketcher.Constraint("Vertical", 11, 3, 12, 3),
    Sketcher.Constraint("Vertical", 12, 3, 13, 3),
    Sketcher.Constraint("Vertical", 13, 3, 14, 3),
    Sketcher.Constraint("Vertical", 14, 3, 15, 3),
    Sketcher.Constraint("Vertical", 15, 3, 16, 3),
    Sketcher.Constraint("Vertical", 16, 3, 17, 3),
    Sketcher.Constraint("Vertical", 17, 3, 18, 3),
    Sketcher.Constraint("Vertical", 18, 3, 19, 3),
    Sketcher.Constraint("Vertical", 19, 3, 20, 3),
    Sketcher.Constraint("Vertical", 20, 3, 21, 3),
    Sketcher.Constraint("Vertical", 21, 3, 22, 3),
    Sketcher.Constraint("Vertical", 22, 3, 23, 3),
    Sketcher.Constraint("Vertical", 23, 3, 24, 3),
    Sketcher.Constraint("Vertical", 24, 3, 25, 3),
    Sketcher.Constraint("Vertical", 25, 3, 26, 3),
    Sketcher.Constraint("Vertical", 26, 3, 27, 3),
    Sketcher.Constraint("Vertical", 27, 3, 28, 3),
    Sketcher.Constraint("Vertical", 28, 3, 29, 3),
    Sketcher.Constraint("Vertical", 29, 3, 30, 3),
    Sketcher.Constraint("Vertical", 30, 3, 31, 3),
    Sketcher.Constraint("Vertical", 31, 3, 32, 3),
    Sketcher.Constraint("Vertical", 32, 3, 33, 3),
    Sketcher.Constraint("Diameter", 0, Q("3.4 mm")),
    Sketcher.Constraint("DistanceX", 0, 3, -1, 1, Q("0.09375 in")),
    Sketcher.Constraint("DistanceY", -1, 1, 0, 3, Q("78.35 mm")),
    Sketcher.Constraint("DistanceY", -1, 1, 1, 3, Q("92.85 mm")),
    Sketcher.Constraint("DistanceY", -1, 1, 2, 3, Q("107.35 mm")),
    Sketcher.Constraint("DistanceY", -1, 1, 3, 3, Q("121.85 mm")),
    Sketcher.Constraint("DistanceY", -1, 1, 4, 3, Q("136.35 mm")),
    Sketcher.Constraint("DistanceY", -1, 1, 5, 3, Q("150.85 mm")),
    Sketcher.Constraint("DistanceY", -1, 1, 6, 3, Q("165.35 mm")),
    Sketcher.Constraint("DistanceY", -1, 1, 7, 3, Q("179.85 mm")),
    Sketcher.Constraint("DistanceY", -1, 1, 8, 3, Q("194.35 mm")),
    Sketcher.Constraint("DistanceY", -1, 1, 9, 3, Q("208.85 mm")),
    Sketcher.Constraint("DistanceY", -1, 1, 10, 3, Q("223.35 mm")),
    Sketcher.Constraint("DistanceY", -1, 1, 11, 3, Q("237.85 mm")),
    Sketcher.Constraint("DistanceY", -1, 1, 12, 3, Q("252.35 mm")),
    Sketcher.Constraint("DistanceY", -1, 1, 13, 3, Q("266.85 mm")),
    Sketcher.Constraint("DistanceY", -1, 1, 14, 3, Q("281.35 mm")),
    Sketcher.Constraint("DistanceY", -1, 1, 15, 3, Q("295.85 mm")),
    Sketcher.Constraint("DistanceY", -1, 1, 16, 3, Q("310.35 mm")),
    Sketcher.Constraint("DistanceY", -1, 1, 17, 3, Q("324.85 mm")),
    Sketcher.Constraint("DistanceY", -1, 1, 18, 3, Q("339.35 mm")),
    Sketcher.Constraint("DistanceY", -1, 1, 19, 3, Q("353.85 mm")),
    Sketcher.Constraint("DistanceY", -1, 1, 20, 3, Q("368.35 mm")),
    Sketcher.Constraint("DistanceY", -1, 1, 21, 3, Q("382.85 mm")),
    Sketcher.Constraint("DistanceY", -1, 1, 22, 3, Q("397.35 mm")),
    Sketcher.Constraint("DistanceY", -1, 1, 23, 3, Q("411.85 mm")),
    Sketcher.Constraint("DistanceY", -1, 1, 24, 3, Q("426.35 mm")),
    Sketcher.Constraint("DistanceY", -1, 1, 25, 3, Q("440.85 mm")),
    Sketcher.Constraint("DistanceY", -1, 1, 26, 3, Q("455.35 mm")),
    Sketcher.Constraint("DistanceY", -1, 1, 27, 3, Q("469.85 mm")),
    Sketcher.Constraint("DistanceY", -1, 1, 28, 3, Q("484.35 mm")),
    Sketcher.Constraint("DistanceY", -1, 1, 29, 3, Q("498.85 mm")),
    Sketcher.Constraint("DistanceY", -1, 1, 30, 3, Q("513.35 mm")),
    Sketcher.Constraint("DistanceY", -1, 1, 31, 3, Q("527.85 mm")),
    Sketcher.Constraint("DistanceY", -1, 1, 32, 3, Q("542.35 mm")),
    Sketcher.Constraint("DistanceY", -1, 1, 33, 3, Q("556.85 mm")),
])
pocket3 = body.newObject("PartDesign::Pocket", "Pocket002")
pocket3.Profile = sketch4
pocket3.Type = "ThroughAll"
pocket3.Reversed = True

doc.recompute()
